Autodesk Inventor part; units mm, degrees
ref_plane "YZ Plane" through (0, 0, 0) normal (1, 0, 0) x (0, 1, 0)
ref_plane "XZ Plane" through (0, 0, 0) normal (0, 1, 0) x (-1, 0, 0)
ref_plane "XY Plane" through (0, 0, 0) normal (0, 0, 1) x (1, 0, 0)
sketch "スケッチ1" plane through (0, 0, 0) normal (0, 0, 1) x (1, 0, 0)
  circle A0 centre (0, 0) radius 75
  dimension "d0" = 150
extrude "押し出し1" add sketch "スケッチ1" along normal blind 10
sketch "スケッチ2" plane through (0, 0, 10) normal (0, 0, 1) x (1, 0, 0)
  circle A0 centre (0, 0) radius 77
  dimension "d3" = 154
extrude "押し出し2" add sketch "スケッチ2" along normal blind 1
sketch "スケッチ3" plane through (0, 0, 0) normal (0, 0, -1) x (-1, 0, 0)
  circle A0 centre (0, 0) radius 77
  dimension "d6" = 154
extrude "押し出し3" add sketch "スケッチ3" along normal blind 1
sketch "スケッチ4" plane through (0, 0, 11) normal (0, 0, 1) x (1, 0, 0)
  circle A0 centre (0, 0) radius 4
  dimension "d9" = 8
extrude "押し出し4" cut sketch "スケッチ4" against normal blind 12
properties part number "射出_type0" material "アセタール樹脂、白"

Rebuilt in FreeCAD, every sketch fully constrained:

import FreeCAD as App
import Part
import Sketcher

doc = App.newDocument("Part")
params = doc.addObject("Spreadsheet::Sheet", "Params")
for row, (alias, value) in enumerate([
    ("sketch1_diameter", "150 mm"),
    ("pad1_length", "10 mm"),
    ("sketch2_diameter", "154 mm"),
    ("pad2_length", "1 mm"),
    ("sketch3_diameter", "154 mm"),
    ("pad3_length", "1 mm"),
    ("sketch4_diameter", "8 mm"),
    ("pocket1_length", "12 mm"),
], start=1):
    params.set(f"A{row}", alias)
    params.set(f"B{row}", "=" + value)
    params.setAlias(f"B{row}", alias)

body = doc.addObject("PartDesign::Body", "Body")

sketch1 = doc.addObject("Sketcher::SketchObject", "Sketch")
body.addObject(sketch1)
sketch1.AttachmentSupport = (doc.XY_Plane, [""])
sketch1.MapMode = "FlatFace"
sketch1.addGeometry(Part.Circle(App.Vector(0, 0, 0), App.Vector(0, 0, 1), 75), False)
sketch1.addConstraint(Sketcher.Constraint("Coincident", 0, 3, -1, 1))
sketch1.addConstraint(Sketcher.Constraint("Diameter", 0, 150.0))
sketch1.setExpression("Constraints[1]", "Params.sketch1_diameter")
pad1 = doc.addObject("PartDesign::Pad", "Pad")
body.addObject(pad1)
pad1.Profile = sketch1
pad1.setExpression("Length", "Params.pad1_length")

sketch2 = doc.addObject("Sketcher::SketchObject", "Sketch001")
body.addObject(sketch2)
sketch2.AttachmentSupport = (doc.XY_Plane, [""])
sketch2.MapMode = "FlatFace"
sketch2.AttachmentOffset = App.Placement(App.Vector(0, 0, 10), App.Rotation())
sketch2.addGeometry(Part.Circle(App.Vector(0, 0, 0), App.Vector(0, 0, 1), 77), False)
sketch2.addConstraint(Sketcher.Constraint("Coincident", 0, 3, -1, 1))
sketch2.addConstraint(Sketcher.Constraint("Diameter", 0, 154.0))
sketch2.setExpression("Constraints[1]", "Params.sketch2_diameter")
pad2 = doc.addObject("PartDesign::Pad", "Pad001")
body.addObject(pad2)
pad2.Profile = sketch2
pad2.setExpression("Length", "Params.pad2_length")

sketch3 = doc.addObject("Sketcher::SketchObject", "Sketch002")
body.addObject(sketch3)
sketch3.AttachmentSupport = (doc.XY_Plane, [""])
sketch3.MapMode = "FlatFace"
sketch3.addGeometry(Part.Circle(App.Vector(0, 0, 0), App.Vector(0, 0, 1), 77), False)
sketch3.addConstraint(Sketcher.Constraint("Coincident", 0, 3, -1, 1))
sketch3.addConstraint(Sketcher.Constraint("Diameter", 0, 154.0))
sketch3.setExpression("Constraints[1]", "Params.sketch3_diameter")
pad3 = doc.addObject("PartDesign::Pad", "Pad002")
body.addObject(pad3)
pad3.Profile = sketch3
pad3.setExpression("Length", "Params.pad3_length")
pad3.Reversed = True

sketch4 = doc.addObject("Sketcher::SketchObject", "Sketch003")
body.addObject(sketch4)
sketch4.AttachmentSupport = (doc.XY_Plane, [""])
sketch4.MapMode = "FlatFace"
sketch4.AttachmentOffset = App.Placement(App.Vector(0, 0, 11), App.Rotation())
sketch4.addGeometry(Part.Circle(App.Vector(0, 0, 0), App.Vector(0, 0, 1), 4), False)
sketch4.addConstraint(Sketcher.Constraint("Coincident", 0, 3, -1, 1))
sketch4.addConstraint(Sketcher.Constraint("Diameter", 0, 8.0))
sketch4.setExpression("Constraints[1]", "Params.sketch4_diameter")
pocket1 = doc.addObject("PartDesign::Pocket", "Pocket")
body.addObject(pocket1)
pocket1.Profile = sketch4
pocket1.setExpression("Length", "Params.pocket1_length")

doc.recompute()
